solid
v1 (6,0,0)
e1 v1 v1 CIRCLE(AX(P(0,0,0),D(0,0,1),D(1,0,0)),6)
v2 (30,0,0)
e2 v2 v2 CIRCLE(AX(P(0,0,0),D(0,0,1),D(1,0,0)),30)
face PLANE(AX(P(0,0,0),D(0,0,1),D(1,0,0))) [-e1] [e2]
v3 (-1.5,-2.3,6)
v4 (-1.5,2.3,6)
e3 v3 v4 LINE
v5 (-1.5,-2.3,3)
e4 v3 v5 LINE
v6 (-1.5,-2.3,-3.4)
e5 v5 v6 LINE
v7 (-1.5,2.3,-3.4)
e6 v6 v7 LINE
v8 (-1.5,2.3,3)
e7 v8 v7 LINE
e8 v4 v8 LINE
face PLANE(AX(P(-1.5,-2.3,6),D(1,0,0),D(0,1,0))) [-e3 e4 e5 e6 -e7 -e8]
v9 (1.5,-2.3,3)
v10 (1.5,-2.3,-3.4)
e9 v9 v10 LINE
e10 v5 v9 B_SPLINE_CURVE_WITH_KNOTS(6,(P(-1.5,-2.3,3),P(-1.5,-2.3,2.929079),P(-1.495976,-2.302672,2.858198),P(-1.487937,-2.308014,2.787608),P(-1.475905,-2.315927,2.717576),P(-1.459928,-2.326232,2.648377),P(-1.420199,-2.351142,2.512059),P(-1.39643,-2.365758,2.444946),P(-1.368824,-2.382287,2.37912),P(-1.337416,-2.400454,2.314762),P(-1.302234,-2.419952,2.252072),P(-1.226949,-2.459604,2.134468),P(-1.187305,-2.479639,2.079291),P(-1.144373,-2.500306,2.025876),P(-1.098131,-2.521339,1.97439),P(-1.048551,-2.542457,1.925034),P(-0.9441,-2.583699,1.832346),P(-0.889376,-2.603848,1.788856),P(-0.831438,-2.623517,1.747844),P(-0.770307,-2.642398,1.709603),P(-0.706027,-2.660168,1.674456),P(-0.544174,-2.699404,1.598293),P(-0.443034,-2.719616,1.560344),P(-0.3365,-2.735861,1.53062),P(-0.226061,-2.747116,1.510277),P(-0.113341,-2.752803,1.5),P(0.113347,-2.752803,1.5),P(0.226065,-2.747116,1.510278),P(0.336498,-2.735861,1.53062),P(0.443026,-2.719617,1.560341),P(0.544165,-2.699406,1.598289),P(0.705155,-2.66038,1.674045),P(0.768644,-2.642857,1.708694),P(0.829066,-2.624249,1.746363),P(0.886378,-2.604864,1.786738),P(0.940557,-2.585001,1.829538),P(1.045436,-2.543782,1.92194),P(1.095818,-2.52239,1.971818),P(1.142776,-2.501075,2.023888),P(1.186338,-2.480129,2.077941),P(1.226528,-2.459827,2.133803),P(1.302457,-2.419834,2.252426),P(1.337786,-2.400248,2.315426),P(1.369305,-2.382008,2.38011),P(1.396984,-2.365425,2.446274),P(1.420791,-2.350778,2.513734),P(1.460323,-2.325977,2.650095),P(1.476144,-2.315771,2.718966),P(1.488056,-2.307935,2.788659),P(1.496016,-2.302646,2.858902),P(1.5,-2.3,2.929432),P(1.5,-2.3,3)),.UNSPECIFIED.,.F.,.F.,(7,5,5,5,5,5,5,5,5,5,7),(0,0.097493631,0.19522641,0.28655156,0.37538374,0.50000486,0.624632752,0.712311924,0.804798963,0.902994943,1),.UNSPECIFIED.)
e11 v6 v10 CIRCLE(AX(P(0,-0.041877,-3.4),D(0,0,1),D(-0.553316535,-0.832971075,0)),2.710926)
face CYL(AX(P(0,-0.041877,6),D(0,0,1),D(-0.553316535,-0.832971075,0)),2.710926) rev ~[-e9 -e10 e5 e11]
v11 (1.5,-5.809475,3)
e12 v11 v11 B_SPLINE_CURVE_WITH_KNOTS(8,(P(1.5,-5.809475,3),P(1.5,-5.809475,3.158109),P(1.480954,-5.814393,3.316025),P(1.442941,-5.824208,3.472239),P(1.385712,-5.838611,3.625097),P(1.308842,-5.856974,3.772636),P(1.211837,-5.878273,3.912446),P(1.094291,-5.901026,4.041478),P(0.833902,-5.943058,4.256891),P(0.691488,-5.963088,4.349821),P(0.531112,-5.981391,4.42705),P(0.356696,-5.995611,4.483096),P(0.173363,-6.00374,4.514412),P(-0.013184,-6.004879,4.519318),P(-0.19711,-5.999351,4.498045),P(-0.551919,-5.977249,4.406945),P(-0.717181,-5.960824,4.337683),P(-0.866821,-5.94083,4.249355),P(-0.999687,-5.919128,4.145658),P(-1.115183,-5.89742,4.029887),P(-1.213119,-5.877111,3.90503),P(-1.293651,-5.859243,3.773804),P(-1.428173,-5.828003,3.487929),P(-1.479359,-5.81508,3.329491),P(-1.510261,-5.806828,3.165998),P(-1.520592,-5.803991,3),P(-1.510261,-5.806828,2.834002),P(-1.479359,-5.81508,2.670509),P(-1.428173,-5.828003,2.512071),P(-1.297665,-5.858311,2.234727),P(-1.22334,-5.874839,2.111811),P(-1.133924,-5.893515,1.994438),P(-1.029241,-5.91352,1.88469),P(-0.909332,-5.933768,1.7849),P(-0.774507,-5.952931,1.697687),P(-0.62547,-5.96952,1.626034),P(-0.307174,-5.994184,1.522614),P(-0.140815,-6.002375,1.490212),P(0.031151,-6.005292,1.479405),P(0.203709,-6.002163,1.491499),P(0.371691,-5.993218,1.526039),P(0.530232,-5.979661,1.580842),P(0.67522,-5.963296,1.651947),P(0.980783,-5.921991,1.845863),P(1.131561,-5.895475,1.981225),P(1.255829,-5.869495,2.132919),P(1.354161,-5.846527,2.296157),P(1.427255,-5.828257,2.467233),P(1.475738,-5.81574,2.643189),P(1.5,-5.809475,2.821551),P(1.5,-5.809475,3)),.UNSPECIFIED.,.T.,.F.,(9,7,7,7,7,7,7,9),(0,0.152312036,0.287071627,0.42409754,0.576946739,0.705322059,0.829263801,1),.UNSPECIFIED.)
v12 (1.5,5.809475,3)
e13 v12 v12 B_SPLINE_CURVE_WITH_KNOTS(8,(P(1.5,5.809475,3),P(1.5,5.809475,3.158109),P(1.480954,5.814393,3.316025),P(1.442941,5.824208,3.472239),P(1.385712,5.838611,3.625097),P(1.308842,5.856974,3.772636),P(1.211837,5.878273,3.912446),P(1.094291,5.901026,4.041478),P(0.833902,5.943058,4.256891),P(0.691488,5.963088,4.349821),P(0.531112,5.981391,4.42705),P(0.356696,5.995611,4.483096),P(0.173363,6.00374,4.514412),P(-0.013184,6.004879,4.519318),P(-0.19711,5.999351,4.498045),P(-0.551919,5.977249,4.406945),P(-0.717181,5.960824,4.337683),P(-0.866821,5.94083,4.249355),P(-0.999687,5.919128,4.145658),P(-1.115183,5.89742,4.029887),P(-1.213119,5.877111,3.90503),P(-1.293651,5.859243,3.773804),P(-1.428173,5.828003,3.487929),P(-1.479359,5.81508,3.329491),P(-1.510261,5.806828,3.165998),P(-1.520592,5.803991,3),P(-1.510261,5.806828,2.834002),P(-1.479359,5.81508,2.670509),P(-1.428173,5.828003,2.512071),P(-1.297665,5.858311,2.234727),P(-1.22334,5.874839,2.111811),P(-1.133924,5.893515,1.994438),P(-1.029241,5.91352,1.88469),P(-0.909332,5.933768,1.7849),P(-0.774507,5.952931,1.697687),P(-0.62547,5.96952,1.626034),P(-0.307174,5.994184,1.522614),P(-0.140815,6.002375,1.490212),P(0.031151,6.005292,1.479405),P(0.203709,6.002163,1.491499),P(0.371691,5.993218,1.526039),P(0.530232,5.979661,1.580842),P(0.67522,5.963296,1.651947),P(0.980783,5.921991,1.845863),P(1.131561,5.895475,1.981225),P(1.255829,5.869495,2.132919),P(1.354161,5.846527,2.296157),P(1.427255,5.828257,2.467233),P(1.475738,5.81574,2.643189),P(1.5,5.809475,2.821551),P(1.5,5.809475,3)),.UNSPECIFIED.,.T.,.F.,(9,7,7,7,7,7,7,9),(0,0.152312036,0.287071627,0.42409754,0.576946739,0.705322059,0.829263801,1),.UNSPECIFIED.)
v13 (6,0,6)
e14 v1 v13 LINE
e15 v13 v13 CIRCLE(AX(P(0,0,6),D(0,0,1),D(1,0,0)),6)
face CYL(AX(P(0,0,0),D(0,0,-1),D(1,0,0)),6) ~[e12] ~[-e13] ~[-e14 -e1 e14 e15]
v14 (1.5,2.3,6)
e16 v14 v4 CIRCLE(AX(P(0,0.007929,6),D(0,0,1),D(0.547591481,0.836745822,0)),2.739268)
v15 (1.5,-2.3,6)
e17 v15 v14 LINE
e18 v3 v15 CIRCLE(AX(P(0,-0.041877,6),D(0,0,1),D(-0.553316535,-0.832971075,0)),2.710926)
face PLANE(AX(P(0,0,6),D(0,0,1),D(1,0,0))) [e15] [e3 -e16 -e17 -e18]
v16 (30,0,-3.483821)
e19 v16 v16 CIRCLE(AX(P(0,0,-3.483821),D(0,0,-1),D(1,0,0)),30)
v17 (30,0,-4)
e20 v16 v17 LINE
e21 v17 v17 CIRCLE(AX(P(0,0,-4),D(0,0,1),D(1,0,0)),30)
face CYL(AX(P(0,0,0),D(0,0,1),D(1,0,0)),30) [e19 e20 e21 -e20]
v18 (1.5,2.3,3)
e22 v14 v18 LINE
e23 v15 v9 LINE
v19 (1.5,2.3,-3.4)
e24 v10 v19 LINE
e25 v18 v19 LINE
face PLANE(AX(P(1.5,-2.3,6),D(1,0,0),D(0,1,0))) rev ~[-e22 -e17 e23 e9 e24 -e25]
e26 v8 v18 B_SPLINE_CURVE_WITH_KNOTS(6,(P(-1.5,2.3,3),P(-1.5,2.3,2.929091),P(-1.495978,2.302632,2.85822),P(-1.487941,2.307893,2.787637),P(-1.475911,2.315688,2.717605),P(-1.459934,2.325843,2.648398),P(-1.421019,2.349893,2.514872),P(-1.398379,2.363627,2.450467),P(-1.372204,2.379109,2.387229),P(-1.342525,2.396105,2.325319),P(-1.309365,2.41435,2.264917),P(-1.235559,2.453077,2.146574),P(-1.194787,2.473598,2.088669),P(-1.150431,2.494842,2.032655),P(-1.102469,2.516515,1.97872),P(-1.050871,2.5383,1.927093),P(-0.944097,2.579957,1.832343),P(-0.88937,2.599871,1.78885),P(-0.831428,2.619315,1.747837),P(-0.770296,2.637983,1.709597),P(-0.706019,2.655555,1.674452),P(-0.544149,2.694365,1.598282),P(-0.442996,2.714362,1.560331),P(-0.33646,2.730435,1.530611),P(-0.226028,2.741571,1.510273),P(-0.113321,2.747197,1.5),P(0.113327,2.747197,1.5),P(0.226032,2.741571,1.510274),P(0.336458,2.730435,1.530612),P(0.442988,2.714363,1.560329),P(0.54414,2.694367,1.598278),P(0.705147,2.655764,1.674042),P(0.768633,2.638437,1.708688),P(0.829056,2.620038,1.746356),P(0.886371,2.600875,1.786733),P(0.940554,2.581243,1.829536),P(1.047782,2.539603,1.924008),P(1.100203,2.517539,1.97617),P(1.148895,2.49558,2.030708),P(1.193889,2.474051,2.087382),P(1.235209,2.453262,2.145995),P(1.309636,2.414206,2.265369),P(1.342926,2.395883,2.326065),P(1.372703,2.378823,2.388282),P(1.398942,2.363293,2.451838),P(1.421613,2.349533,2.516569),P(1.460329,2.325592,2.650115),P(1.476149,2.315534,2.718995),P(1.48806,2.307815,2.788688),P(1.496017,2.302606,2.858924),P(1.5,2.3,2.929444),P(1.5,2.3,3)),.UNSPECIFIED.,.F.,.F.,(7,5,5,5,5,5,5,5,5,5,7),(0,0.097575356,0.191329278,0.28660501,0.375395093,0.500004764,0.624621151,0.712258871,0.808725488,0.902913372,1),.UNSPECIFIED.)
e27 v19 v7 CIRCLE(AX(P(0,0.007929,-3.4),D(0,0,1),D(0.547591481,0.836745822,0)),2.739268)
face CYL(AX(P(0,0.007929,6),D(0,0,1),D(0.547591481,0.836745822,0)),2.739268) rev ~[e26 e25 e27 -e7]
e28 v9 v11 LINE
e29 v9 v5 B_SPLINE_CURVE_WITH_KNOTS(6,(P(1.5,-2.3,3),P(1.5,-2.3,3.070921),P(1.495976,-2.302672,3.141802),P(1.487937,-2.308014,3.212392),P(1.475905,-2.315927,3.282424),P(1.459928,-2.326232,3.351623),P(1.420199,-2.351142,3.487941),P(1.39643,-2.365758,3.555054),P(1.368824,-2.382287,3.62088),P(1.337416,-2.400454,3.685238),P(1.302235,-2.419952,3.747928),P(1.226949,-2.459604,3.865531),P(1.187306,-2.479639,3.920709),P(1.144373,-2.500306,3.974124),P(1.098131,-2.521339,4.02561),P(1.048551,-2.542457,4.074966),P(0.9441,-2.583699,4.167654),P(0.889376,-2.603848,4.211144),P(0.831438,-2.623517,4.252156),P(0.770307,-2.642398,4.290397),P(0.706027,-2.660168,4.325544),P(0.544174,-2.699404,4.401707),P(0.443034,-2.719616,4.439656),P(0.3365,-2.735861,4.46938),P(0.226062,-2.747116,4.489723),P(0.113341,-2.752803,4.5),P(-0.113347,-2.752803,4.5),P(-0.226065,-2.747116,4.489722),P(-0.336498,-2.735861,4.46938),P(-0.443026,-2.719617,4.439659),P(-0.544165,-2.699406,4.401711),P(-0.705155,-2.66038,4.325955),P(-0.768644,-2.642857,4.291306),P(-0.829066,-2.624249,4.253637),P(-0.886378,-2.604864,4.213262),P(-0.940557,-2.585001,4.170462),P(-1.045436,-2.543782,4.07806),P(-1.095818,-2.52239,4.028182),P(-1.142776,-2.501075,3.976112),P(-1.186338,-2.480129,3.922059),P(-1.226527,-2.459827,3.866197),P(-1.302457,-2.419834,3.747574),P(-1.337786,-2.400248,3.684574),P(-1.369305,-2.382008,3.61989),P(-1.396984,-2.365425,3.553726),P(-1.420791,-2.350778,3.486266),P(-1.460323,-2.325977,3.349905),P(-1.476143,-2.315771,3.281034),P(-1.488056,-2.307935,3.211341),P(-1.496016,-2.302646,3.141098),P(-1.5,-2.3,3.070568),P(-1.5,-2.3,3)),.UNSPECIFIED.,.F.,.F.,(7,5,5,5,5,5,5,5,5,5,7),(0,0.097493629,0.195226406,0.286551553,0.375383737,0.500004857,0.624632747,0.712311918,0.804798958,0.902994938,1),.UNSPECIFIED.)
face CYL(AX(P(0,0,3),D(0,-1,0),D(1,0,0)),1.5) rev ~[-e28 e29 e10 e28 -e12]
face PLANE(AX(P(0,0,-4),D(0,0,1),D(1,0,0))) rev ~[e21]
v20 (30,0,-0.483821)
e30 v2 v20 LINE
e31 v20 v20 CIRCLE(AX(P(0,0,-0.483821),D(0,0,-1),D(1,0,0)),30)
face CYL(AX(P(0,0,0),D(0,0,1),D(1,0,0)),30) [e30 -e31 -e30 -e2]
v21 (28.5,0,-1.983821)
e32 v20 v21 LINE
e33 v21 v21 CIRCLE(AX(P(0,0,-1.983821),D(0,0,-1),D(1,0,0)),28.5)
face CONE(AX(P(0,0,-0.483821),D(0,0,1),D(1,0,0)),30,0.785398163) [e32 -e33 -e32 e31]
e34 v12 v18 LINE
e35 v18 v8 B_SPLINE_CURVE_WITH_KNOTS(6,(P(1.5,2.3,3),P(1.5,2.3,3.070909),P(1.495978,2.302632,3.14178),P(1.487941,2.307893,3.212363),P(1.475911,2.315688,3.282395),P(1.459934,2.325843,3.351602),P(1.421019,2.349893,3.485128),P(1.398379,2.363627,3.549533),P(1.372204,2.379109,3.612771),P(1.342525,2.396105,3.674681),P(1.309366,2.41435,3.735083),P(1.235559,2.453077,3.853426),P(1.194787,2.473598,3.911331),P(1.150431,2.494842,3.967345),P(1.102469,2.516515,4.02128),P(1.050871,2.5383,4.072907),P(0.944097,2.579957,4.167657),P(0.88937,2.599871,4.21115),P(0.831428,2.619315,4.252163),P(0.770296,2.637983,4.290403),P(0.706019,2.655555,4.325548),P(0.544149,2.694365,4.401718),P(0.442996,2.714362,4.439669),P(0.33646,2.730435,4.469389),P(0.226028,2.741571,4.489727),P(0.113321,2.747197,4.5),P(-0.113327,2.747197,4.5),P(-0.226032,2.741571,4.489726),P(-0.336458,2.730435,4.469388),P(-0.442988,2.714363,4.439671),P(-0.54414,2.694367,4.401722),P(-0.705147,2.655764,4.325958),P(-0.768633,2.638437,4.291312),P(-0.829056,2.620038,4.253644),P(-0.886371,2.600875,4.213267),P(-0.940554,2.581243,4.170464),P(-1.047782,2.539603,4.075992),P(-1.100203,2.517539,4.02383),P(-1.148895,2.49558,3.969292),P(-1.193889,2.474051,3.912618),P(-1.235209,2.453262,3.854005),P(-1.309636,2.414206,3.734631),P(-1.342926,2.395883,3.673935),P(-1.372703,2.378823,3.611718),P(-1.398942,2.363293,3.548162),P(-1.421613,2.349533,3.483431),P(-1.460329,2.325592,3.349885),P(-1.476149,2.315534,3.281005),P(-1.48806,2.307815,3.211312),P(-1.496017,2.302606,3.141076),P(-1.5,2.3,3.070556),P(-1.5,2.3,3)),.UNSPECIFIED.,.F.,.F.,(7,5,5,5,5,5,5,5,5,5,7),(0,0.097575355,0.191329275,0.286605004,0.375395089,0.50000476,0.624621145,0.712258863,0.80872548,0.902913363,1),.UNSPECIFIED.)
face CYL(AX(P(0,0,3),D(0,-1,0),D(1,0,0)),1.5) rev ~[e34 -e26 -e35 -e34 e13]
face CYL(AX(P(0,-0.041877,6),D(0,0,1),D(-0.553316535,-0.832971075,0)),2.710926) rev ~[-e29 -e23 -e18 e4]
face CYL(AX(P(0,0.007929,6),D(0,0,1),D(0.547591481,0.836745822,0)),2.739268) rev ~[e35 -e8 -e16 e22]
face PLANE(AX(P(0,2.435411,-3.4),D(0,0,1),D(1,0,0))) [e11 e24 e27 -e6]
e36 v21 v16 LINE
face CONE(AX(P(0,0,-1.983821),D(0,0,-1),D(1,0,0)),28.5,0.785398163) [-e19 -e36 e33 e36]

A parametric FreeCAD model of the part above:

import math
import FreeCAD as App
import Part
import Sketcher

V = App.Vector
Q = App.Units.Quantity


def add_polygon(sketch, points):
    """Adds a closed chain of lines whose ends are joined by coincident constraints."""
    first, n = sketch.GeometryCount, len(points)
    for a, b in zip(points, points[1:] + points[:1]):
        sketch.addGeometry(Part.LineSegment(App.Vector(*a, 0), App.Vector(*b, 0)), False)
    for i in range(n):
        sketch.addConstraint(Sketcher.Constraint("Coincident", first + i, 2, first + (i + 1) % n, 1))

doc = App.newDocument("Part")
body = doc.addObject("PartDesign::Body", "Body")

sketch1 = doc.addObject("Sketcher::SketchObject", "Sketch")
body.addObject(sketch1)
sketch1.AttachmentSupport = (doc.XY_Plane, [""])
sketch1.MapMode = "FlatFace"
sketch1.addGeometry(Part.Circle(V(0, 0, 0), V(0, 0, 1), 30), False)
sketch1.addConstraint(Sketcher.Constraint("Coincident", 0, 3, -1, 1))
sketch1.addConstraint(Sketcher.Constraint("Diameter", 0, Q("60 mm")))
pad1 = doc.addObject("PartDesign::Pad", "Pad")
body.addObject(pad1)
pad1.Profile = sketch1
pad1.Length = 4
pad1.Reversed = True

sketch2 = doc.addObject("Sketcher::SketchObject", "Sketch001")
body.addObject(sketch2)
sketch2.AttachmentSupport = (doc.XY_Plane, [""])
sketch2.MapMode = "FlatFace"
sketch2.addGeometry(Part.Circle(V(0, 0, 0), V(0, 0, 1), 6), False)
sketch2.addConstraint(Sketcher.Constraint("Coincident", 0, 3, -1, 1))
sketch2.addConstraint(Sketcher.Constraint("Diameter", 0, Q("12 mm")))
pad2 = doc.addObject("PartDesign::Pad", "Pad001")
body.addObject(pad2)
pad2.Profile = sketch2
pad2.Length = 6

sketch3 = doc.addObject("Sketcher::SketchObject", "Sketch002")
body.addObject(sketch3)
sketch3.AttachmentSupport = (doc.XZ_Plane, [""])
sketch3.MapMode = "FlatFace"
sketch3.addGeometry(Part.Circle(V(0, 3, 0), V(0, 0, 1), 1.5), False)
sketch3.addConstraint(Sketcher.Constraint("PointOnObject", 0, 3, -2))
sketch3.addConstraint(Sketcher.Constraint("Diameter", 0, Q("3 mm")))
sketch3.addConstraint(Sketcher.Constraint("DistanceY", -1, 1, 0, 3, Q("3 mm")))
pocket1 = doc.addObject("PartDesign::Pocket", "Pocket")
body.addObject(pocket1)
pocket1.Profile = sketch3
pocket1.Length = 25
pocket1.Midplane = True

sketch4 = doc.addObject("Sketcher::SketchObject", "Sketch003")
body.addObject(sketch4)
sketch4.AttachmentSupport = (doc.XY_Plane, [""])
sketch4.MapMode = "FlatFace"
sketch4.AttachmentOffset = App.Placement(V(0, 0, 6), App.Rotation())
sketch4.addGeometry(Part.ArcOfCircle(Part.Circle(V(0, 0, 0), V(0, 0, 1), 2.7), math.radians(57), math.radians(123)), False)
sketch4.addGeometry(Part.LineSegment(V(-1.5, 2.3, 0), V(-1.5, -2.3, 0)), False)
sketch4.addGeometry(Part.ArcOfCircle(Part.Circle(V(0, 0, 0), V(0, 0, 1), 2.7), math.radians(-124), math.radians(-56)), False)
sketch4.addGeometry(Part.LineSegment(V(1.5, -2.3, 0), V(1.5, 2.3, 0)), False)
sketch4.addConstraint(Sketcher.Constraint("Coincident", 0, 2, 1, 1))
sketch4.addConstraint(Sketcher.Constraint("Coincident", 1, 2, 2, 1))
sketch4.addConstraint(Sketcher.Constraint("Coincident", 2, 2, 3, 1))
sketch4.addConstraint(Sketcher.Constraint("Coincident", 3, 2, 0, 1))
sketch4.addConstraint(Sketcher.Constraint("Vertical", 1))
sketch4.addConstraint(Sketcher.Constraint("Vertical", 3))
sketch4.addConstraint(Sketcher.Constraint("Symmetric", 0, 2, 2, 2, -1, 1))
sketch4.addConstraint(Sketcher.Constraint("PointOnObject", 0, 3, -2))
sketch4.addConstraint(Sketcher.Constraint("PointOnObject", 2, 3, -2))
sketch4.addConstraint(Sketcher.Constraint("DistanceY", 1, 2, 1, 1, Q("4.6 mm")))
sketch4.addConstraint(Sketcher.Constraint("DistanceX", 1, 2, 2, 2, Q("3 mm")))
sketch4.addConstraint(Sketcher.Constraint("Radius", 0, Q("2.739268 mm")))
sketch4.addConstraint(Sketcher.Constraint("Radius", 2, Q("2.710926 mm")))
pocket2 = doc.addObject("PartDesign::Pocket", "Pocket001")
body.addObject(pocket2)
pocket2.Profile = sketch4
pocket2.Length = 9.4

sketch5 = doc.addObject("Sketcher::SketchObject", "Sketch004")
body.addObject(sketch5)
sketch5.AttachmentSupport = (doc.XZ_Plane, [""])
sketch5.MapMode = "FlatFace"
add_polygon(sketch5, [(30, -3.5), (30, -0.5), (28.5, -2)])
sketch5.addConstraint(Sketcher.Constraint("Vertical", 0))
sketch5.addConstraint(Sketcher.Constraint("Perpendicular", 1, 2))
sketch5.addConstraint(Sketcher.Constraint("Equal", 1, 2))
sketch5.addConstraint(Sketcher.Constraint("DistanceY", 0, 1, 0, 2, Q("3 mm")))
sketch5.addConstraint(Sketcher.Constraint("DistanceX", -1, 1, 0, 2, Q("30 mm")))
sketch5.addConstraint(Sketcher.Constraint("DistanceY", 0, 2, -1, 1, Q("0.483821 mm")))
groove = doc.addObject("PartDesign::Groove", "Groove")
body.addObject(groove)
groove.Profile = sketch5
groove.ReferenceAxis = (sketch5, ["V_Axis"])
groove.Angle = 360

doc.recompute()
